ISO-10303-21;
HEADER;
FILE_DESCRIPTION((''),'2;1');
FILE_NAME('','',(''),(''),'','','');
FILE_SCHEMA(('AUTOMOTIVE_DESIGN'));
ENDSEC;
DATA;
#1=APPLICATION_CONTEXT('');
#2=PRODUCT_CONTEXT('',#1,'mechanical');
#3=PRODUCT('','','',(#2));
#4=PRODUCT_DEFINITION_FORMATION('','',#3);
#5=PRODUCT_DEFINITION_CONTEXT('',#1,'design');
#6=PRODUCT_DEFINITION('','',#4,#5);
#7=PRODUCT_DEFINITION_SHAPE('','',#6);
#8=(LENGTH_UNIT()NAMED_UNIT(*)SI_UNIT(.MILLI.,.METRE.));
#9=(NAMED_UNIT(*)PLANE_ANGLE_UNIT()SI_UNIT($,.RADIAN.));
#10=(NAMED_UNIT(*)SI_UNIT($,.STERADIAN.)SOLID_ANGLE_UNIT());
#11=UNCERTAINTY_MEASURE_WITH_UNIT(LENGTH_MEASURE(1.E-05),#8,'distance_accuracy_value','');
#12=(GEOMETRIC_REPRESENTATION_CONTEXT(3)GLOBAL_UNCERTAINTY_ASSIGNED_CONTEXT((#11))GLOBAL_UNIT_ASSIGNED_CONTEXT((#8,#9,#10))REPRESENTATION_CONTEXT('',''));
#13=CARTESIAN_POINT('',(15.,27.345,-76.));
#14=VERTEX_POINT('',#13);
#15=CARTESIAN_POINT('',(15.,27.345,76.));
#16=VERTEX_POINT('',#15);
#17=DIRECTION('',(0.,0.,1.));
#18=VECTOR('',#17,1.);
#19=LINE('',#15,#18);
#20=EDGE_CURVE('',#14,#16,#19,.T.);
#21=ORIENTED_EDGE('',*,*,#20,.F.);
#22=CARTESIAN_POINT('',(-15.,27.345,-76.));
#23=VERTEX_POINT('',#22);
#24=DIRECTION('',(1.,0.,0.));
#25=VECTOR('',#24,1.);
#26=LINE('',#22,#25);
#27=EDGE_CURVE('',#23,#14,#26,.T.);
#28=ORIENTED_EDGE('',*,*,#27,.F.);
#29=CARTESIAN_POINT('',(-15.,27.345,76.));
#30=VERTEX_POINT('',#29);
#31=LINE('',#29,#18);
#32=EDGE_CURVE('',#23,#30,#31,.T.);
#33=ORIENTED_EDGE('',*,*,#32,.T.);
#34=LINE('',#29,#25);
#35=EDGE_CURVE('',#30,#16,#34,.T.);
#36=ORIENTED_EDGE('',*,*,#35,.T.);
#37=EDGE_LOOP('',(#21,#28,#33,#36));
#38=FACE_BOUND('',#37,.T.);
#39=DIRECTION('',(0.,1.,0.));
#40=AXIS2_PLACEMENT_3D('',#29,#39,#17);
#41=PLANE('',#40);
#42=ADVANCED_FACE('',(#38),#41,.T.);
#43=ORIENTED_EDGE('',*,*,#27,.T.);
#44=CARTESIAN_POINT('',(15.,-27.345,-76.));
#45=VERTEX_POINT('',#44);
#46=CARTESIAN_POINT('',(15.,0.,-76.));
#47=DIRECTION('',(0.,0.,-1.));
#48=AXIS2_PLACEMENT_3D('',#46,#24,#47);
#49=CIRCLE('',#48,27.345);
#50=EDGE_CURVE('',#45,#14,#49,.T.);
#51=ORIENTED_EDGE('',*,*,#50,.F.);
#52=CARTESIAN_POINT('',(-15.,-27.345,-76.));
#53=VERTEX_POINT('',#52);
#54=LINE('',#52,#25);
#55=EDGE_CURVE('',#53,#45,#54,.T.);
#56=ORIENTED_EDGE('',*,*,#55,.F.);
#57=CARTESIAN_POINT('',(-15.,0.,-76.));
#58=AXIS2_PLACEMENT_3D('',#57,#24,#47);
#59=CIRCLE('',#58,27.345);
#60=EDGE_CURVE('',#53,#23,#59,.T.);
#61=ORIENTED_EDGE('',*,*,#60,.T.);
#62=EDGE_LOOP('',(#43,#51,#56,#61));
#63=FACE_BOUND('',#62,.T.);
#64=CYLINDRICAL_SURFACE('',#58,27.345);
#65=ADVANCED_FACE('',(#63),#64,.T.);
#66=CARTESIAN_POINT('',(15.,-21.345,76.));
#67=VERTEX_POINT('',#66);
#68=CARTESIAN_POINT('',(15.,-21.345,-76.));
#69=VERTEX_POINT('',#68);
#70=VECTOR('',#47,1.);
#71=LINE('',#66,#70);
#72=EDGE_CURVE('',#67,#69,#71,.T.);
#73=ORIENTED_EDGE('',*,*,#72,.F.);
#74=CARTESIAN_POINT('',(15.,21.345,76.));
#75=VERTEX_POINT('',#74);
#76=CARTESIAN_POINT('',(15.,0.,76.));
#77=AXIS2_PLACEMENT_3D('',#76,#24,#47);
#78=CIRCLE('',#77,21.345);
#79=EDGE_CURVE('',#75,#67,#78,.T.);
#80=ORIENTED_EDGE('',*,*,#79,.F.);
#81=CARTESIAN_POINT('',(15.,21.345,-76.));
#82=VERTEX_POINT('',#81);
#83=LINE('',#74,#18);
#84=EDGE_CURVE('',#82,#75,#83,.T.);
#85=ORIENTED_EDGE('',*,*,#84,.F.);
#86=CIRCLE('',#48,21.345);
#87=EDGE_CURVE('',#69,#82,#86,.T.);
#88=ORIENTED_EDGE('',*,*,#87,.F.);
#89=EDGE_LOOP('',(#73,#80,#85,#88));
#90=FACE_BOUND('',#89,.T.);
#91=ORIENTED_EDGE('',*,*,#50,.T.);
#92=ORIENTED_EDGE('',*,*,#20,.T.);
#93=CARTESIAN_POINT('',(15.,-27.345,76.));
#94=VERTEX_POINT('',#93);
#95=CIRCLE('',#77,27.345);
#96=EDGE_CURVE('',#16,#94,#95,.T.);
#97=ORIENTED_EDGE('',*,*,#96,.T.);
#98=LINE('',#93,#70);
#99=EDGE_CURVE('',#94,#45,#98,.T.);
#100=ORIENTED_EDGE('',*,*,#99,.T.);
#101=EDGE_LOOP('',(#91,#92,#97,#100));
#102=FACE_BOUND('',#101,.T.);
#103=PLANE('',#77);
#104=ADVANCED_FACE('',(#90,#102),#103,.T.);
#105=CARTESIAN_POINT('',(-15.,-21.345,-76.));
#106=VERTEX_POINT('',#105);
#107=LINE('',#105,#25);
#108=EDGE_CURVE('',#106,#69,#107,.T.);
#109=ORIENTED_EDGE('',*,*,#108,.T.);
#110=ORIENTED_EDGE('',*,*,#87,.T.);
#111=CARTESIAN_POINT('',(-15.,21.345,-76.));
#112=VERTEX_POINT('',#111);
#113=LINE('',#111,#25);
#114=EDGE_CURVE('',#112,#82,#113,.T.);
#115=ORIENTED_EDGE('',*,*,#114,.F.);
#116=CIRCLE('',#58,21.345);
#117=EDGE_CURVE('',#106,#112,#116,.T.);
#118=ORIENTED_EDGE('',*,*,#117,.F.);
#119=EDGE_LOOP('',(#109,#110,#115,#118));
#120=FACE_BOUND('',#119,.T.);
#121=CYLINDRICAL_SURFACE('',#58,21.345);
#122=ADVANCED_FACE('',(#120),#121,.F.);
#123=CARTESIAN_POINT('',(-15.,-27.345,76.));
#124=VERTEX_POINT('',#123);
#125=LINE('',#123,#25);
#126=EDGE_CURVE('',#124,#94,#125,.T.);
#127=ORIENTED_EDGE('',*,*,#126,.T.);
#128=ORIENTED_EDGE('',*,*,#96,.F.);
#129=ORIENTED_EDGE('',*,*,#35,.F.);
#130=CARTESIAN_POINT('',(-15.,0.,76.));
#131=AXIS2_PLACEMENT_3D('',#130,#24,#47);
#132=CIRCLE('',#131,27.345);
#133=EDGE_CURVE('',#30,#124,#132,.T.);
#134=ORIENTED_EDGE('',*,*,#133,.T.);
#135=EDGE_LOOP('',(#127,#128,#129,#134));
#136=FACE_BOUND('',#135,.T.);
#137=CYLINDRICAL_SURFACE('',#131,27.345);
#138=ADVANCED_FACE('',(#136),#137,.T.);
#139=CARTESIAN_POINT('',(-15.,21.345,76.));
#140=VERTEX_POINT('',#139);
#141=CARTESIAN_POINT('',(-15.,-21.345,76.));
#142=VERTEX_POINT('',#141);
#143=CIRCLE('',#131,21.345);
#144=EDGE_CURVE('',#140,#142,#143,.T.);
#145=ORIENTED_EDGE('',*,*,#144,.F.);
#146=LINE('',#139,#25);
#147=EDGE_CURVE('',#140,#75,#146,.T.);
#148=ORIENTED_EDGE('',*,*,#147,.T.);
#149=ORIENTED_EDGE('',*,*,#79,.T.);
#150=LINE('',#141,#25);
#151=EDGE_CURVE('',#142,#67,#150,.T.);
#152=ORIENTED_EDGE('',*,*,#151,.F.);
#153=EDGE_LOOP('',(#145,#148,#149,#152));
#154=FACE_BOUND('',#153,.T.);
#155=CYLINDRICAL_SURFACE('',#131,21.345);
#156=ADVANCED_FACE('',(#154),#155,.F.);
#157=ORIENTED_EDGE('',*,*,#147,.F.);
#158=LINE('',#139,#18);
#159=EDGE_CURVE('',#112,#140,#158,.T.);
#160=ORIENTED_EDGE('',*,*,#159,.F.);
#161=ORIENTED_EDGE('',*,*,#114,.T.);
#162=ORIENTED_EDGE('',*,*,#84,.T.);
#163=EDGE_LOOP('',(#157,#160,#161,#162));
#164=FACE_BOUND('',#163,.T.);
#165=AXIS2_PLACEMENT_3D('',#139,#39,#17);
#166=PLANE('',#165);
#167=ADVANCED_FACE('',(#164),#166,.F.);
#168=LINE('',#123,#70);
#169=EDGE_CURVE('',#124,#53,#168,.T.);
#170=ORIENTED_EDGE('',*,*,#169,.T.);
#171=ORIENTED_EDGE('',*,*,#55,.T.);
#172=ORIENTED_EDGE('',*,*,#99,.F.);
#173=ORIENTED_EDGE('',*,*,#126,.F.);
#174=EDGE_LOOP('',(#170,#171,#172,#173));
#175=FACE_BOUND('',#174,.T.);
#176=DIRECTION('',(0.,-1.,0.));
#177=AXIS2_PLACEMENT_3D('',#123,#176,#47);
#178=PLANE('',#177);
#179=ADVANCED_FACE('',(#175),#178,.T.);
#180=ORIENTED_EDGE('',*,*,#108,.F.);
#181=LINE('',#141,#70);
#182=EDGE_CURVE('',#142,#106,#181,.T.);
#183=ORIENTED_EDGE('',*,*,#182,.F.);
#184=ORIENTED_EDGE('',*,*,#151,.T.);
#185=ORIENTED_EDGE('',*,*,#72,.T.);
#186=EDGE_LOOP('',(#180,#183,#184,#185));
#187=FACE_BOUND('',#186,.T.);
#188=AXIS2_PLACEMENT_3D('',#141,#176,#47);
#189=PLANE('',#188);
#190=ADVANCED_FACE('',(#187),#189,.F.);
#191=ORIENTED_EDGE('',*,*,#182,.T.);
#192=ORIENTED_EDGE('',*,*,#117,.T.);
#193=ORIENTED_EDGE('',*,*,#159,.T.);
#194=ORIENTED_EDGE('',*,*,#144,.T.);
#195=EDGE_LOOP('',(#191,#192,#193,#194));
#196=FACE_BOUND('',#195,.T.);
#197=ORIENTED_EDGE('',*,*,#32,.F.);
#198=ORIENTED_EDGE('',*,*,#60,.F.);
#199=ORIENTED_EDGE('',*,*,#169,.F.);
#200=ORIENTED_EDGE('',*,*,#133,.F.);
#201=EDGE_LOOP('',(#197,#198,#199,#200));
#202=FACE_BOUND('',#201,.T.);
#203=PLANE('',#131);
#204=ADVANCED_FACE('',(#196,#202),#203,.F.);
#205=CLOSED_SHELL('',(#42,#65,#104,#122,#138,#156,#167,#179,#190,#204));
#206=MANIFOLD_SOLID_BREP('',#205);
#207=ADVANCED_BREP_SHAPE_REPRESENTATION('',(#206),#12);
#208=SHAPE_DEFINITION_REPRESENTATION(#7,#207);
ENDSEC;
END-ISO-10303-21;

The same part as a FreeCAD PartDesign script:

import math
import FreeCAD as App
import Part
import Sketcher

V = App.Vector

doc = App.newDocument("Part")
body = doc.addObject("PartDesign::Body", "Body")

# Sketch on YZ plane
sketch1 = doc.addObject("Sketcher::SketchObject", "Sketch")
body.addObject(sketch1)
sketch1.AttachmentSupport = (doc.YZ_Plane, [""])
sketch1.MapMode = "FlatFace"
sketch1.addGeometry([
    Part.LineSegment(V(27, -76, 0), V(27, 76, 0)),
    Part.ArcOfCircle(Part.Circle(V(0, 76, 0), V(0, 0, 1), 27), math.radians(0), math.radians(180)),
    Part.LineSegment(V(-27, 76, 0), V(-27, -76, 0)),
    Part.ArcOfCircle(Part.Circle(V(0, -76, 0), V(0, 0, 1), 27), math.radians(180), math.radians(360)),
], False)
sketch1.addConstraint([
    Sketcher.Constraint("Tangent", 0, 2, 1, 1),
    Sketcher.Constraint("Tangent", 1, 2, 2, 1),
    Sketcher.Constraint("Tangent", 2, 2, 3, 1),
    Sketcher.Constraint("Tangent", 3, 2, 0, 1),
    Sketcher.Constraint("Vertical", 0),
    Sketcher.Constraint("Vertical", 2),
    Sketcher.Constraint("Symmetric", 1, 3, 3, 3, -1, 1),
    Sketcher.Constraint("DistanceY", 0, 1, 0, 2, 152.0),
    Sketcher.Constraint("Radius", 1, 27.345),
])
pad1 = doc.addObject("PartDesign::Pad", "Pad")
body.addObject(pad1)
pad1.Profile = sketch1
pad1.Type = "TwoLengths"
pad1.Length = 15
pad1.Length2 = 15

# Sketch on YZ plane
sketch2 = doc.addObject("Sketcher::SketchObject", "Sketch001")
body.addObject(sketch2)
sketch2.AttachmentSupport = (doc.YZ_Plane, [""])
sketch2.MapMode = "FlatFace"
sketch2.AttachmentOffset = App.Placement(V(0, 0, 15), App.Rotation())
sketch2.addGeometry([
    Part.LineSegment(V(21, -76, 0), V(21, 76, 0)),
    Part.ArcOfCircle(Part.Circle(V(0, 76, 0), V(0, 0, 1), 21), math.radians(0), math.radians(180)),
    Part.LineSegment(V(-21, 76, 0), V(-21, -76, 0)),
    Part.ArcOfCircle(Part.Circle(V(0, -76, 0), V(0, 0, 1), 21), math.radians(180), math.radians(360)),
], False)
sketch2.addConstraint([
    Sketcher.Constraint("Tangent", 0, 2, 1, 1),
    Sketcher.Constraint("Tangent", 1, 2, 2, 1),
    Sketcher.Constraint("Tangent", 2, 2, 3, 1),
    Sketcher.Constraint("Tangent", 3, 2, 0, 1),
    Sketcher.Constraint("Vertical", 0),
    Sketcher.Constraint("Vertical", 2),
    Sketcher.Constraint("Symmetric", 1, 3, 3, 3, -1, 1),
    Sketcher.Constraint("DistanceY", 0, 1, 0, 2, 152.0),
    Sketcher.Constraint("Radius", 1, 21.345),
])
pocket1 = doc.addObject("PartDesign::Pocket", "Pocket")
body.addObject(pocket1)
pocket1.Profile = sketch2
pocket1.Length = 30

doc.recompute()
